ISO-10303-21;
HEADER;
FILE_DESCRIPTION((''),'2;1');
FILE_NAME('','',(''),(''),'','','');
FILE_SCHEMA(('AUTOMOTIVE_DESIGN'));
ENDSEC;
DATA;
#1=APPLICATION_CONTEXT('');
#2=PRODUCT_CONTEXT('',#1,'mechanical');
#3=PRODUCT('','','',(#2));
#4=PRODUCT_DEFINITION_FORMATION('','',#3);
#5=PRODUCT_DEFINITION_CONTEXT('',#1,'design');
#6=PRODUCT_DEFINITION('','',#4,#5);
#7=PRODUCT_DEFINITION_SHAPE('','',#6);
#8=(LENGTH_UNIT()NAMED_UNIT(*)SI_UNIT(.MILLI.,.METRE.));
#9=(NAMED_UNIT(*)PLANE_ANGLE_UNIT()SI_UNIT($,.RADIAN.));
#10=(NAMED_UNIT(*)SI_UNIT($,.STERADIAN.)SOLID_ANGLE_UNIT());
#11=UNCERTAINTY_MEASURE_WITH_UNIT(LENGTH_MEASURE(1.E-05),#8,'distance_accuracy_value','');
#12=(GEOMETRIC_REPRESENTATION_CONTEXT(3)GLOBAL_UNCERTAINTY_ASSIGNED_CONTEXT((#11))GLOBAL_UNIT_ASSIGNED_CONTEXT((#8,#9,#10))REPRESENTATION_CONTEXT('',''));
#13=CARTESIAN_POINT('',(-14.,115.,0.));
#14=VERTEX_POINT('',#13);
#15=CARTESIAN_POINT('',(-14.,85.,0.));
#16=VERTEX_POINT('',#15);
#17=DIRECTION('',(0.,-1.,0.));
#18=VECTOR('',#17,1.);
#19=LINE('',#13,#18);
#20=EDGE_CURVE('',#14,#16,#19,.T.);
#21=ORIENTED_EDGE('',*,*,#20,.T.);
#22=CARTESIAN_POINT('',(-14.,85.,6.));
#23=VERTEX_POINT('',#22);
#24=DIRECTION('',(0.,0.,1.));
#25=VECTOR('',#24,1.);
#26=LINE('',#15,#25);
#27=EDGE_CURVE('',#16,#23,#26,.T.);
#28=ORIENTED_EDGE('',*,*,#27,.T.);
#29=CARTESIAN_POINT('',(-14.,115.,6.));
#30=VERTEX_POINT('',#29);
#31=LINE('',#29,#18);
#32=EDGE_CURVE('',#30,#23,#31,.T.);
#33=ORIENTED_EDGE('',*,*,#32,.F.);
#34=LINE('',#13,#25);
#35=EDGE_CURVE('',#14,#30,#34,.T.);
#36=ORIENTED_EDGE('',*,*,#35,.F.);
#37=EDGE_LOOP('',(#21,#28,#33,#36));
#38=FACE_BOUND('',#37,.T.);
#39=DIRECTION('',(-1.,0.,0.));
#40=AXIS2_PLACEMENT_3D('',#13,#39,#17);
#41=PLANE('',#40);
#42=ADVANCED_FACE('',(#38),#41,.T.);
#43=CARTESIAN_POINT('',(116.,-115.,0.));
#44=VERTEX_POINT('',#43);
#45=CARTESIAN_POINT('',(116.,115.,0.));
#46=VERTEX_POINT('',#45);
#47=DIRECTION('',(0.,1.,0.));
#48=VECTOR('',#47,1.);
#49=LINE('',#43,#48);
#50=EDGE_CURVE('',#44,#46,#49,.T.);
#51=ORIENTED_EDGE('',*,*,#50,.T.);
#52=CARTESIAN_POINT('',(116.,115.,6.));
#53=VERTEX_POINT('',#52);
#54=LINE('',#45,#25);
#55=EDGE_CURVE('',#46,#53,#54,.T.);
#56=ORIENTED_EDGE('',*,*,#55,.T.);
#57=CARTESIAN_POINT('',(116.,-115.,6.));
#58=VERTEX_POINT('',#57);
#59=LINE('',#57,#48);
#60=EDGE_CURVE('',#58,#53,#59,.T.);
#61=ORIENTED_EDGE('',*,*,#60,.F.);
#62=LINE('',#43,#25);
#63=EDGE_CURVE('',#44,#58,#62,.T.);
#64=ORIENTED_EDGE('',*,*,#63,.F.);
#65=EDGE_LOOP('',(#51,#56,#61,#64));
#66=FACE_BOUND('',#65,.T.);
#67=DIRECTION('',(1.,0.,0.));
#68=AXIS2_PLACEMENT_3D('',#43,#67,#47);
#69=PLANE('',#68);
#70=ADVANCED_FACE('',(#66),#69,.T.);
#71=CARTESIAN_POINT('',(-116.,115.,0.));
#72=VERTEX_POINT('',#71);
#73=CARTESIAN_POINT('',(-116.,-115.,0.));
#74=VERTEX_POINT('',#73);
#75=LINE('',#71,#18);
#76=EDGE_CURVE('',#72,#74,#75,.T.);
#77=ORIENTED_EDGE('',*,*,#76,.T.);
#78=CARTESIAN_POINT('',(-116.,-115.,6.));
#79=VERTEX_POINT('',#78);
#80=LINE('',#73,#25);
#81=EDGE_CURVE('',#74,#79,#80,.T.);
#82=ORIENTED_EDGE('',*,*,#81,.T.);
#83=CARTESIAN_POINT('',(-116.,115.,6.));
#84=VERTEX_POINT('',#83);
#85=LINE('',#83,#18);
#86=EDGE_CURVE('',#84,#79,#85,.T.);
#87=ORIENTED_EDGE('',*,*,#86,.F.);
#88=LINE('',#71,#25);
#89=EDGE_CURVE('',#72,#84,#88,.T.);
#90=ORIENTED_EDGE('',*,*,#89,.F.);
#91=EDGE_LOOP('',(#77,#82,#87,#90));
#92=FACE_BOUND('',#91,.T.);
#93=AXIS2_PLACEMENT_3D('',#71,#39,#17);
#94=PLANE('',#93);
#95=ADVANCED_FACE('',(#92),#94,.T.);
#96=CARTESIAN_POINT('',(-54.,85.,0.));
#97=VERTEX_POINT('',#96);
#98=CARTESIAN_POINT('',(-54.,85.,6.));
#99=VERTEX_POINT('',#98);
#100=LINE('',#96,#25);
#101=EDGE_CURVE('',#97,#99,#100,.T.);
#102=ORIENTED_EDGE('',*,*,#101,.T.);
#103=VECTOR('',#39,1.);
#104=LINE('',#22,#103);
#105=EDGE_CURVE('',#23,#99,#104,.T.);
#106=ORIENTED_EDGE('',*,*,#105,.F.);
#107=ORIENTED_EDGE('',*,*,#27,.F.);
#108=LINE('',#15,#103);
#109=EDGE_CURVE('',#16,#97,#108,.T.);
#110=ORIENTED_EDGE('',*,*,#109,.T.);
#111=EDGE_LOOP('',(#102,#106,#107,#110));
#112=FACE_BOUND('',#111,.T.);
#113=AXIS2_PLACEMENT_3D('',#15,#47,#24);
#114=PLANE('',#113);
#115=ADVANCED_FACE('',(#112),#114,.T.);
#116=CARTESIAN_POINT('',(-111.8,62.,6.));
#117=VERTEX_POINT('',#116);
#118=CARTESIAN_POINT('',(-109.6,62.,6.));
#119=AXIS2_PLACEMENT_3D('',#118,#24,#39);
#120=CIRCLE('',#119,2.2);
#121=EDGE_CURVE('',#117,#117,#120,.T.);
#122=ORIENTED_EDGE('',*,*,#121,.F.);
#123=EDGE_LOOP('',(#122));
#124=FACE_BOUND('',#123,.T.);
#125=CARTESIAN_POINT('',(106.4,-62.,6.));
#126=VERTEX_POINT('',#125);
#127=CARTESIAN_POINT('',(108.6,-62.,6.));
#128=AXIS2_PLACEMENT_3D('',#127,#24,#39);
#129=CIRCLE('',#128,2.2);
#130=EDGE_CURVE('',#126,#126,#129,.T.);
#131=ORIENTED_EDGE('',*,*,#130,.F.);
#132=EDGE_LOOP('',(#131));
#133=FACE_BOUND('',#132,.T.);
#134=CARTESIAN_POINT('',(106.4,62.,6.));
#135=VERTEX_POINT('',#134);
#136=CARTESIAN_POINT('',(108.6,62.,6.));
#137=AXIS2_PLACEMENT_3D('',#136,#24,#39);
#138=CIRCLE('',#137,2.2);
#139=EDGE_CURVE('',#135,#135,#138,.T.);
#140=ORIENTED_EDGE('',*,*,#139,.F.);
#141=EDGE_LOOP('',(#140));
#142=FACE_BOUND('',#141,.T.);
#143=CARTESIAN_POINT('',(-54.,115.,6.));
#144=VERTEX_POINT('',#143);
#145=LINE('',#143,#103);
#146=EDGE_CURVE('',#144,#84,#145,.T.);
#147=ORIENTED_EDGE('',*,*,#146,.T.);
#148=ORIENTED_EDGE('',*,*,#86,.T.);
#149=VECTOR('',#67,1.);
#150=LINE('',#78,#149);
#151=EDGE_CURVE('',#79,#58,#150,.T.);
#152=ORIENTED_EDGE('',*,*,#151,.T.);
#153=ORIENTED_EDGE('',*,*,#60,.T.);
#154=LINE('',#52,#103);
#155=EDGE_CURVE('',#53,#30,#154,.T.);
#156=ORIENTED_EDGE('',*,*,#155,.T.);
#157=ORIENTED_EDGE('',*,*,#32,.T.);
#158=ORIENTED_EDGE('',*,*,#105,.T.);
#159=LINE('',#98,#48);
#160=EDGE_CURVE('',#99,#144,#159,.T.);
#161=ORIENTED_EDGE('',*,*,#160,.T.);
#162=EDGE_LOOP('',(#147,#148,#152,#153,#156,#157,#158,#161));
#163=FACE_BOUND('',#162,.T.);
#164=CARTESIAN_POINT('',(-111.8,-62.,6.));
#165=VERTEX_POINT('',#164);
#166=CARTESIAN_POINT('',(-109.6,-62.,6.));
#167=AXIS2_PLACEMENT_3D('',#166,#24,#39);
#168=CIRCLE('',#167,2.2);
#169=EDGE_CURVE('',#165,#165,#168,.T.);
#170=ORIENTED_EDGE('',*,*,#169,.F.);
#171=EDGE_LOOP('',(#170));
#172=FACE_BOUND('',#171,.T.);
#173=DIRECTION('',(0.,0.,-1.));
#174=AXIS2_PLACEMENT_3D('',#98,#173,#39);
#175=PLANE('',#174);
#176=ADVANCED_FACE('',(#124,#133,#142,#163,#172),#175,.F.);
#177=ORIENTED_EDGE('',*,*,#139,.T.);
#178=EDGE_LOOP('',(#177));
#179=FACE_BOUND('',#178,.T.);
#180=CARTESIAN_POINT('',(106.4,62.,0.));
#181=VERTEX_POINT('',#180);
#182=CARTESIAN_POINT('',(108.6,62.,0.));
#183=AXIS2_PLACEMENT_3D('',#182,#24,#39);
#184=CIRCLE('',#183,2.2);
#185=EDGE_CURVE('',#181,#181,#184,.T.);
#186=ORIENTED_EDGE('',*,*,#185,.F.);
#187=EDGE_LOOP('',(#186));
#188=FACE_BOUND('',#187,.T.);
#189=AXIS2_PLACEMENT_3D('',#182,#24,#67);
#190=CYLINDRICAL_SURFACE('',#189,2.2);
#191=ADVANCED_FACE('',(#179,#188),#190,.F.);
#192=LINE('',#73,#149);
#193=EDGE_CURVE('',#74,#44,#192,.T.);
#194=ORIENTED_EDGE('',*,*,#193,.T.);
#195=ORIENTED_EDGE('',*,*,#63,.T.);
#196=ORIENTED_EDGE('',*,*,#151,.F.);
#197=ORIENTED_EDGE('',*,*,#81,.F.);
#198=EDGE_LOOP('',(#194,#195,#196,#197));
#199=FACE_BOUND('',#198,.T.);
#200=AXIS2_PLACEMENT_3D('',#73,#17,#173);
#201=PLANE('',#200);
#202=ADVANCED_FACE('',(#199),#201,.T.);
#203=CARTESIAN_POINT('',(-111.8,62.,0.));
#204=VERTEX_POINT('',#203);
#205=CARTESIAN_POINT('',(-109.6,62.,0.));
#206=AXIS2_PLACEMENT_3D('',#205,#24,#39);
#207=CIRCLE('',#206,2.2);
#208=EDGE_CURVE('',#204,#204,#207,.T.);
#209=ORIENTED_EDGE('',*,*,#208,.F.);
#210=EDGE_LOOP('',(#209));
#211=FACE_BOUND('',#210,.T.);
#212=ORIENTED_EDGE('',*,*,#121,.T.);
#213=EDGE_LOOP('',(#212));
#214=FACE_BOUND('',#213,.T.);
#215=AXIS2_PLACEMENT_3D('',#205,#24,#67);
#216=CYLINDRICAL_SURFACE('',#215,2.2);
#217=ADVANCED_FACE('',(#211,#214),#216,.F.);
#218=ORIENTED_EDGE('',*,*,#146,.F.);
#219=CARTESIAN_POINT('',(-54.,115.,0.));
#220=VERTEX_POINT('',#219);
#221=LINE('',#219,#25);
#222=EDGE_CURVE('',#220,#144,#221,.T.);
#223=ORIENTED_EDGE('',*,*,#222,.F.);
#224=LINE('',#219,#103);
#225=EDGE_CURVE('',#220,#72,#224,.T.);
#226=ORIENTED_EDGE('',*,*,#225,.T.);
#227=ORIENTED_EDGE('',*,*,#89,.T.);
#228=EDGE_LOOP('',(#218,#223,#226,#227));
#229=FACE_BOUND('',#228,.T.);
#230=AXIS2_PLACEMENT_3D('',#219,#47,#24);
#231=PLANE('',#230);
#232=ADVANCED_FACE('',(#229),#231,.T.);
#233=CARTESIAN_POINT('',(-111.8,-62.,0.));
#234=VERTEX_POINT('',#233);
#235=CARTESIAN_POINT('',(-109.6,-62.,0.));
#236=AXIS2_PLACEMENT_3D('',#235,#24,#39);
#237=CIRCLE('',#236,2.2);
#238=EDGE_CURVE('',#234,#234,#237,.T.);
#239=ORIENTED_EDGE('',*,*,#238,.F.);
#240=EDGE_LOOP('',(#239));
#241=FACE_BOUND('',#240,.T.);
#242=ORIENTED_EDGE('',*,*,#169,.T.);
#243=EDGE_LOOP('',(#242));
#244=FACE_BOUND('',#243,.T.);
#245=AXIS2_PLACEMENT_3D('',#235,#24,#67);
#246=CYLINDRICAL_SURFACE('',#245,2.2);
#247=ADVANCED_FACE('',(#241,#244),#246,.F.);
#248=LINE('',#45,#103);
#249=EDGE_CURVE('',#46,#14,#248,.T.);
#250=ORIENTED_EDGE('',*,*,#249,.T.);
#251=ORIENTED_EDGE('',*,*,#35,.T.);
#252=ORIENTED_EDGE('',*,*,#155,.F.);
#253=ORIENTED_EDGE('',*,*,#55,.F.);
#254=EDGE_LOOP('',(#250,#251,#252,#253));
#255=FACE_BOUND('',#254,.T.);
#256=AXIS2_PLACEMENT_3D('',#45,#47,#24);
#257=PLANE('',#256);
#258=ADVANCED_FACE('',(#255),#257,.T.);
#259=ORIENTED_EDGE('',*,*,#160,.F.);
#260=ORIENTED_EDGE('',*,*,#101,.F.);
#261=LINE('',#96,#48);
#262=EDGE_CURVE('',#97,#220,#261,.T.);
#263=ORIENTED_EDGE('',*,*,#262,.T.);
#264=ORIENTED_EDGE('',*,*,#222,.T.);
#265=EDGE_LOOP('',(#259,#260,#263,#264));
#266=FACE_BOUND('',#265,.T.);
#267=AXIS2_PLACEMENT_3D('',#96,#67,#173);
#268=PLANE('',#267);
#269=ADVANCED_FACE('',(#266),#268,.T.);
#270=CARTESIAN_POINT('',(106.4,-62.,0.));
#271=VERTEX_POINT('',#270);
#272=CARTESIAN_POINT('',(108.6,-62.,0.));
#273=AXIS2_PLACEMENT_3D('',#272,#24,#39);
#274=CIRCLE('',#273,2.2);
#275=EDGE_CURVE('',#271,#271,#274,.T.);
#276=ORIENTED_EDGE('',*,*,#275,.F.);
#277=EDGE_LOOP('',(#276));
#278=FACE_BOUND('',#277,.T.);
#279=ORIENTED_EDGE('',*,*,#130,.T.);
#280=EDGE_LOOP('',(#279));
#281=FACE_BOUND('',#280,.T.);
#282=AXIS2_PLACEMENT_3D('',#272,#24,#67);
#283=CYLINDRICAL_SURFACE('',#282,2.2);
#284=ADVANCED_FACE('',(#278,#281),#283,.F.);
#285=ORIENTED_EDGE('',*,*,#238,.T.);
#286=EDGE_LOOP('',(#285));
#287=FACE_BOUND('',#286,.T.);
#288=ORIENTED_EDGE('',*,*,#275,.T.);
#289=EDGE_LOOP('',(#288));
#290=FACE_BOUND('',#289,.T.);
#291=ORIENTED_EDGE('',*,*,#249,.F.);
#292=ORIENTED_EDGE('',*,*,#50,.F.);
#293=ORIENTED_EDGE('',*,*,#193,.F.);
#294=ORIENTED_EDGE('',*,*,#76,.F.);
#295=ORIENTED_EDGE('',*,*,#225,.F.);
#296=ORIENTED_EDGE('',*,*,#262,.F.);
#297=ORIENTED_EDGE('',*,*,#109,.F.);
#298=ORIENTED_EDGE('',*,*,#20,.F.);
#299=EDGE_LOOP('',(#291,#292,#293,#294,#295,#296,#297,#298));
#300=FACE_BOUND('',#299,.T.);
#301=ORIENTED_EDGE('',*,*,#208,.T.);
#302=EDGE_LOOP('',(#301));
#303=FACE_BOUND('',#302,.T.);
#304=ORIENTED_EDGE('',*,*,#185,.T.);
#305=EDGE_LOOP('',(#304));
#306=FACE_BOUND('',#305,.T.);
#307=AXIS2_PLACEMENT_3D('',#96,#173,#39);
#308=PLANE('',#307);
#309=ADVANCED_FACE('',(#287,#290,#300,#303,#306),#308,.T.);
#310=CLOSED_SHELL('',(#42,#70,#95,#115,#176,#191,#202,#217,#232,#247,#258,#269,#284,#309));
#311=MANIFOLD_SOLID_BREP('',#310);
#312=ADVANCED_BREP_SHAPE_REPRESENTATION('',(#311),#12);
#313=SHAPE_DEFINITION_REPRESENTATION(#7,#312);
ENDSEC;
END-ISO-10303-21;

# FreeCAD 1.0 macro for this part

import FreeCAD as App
import Part
import Sketcher
Q = App.Units.Quantity

doc = App.newDocument("Part")
body = doc.addObject("PartDesign::Body", "Body")

# Sketch on XY plane
sketch1 = body.newObject("Sketcher::SketchObject", "Sketch")
sketch1.AttachmentSupport = (doc.getObject("XY_Plane"), [""])
sketch1.MapMode = "FlatFace"
sketch1.AttachmentOffset = App.Placement(App.Vector(0, 0, 6), App.Rotation())
sketch1.addGeometry([
    Part.LineSegment(App.Vector(-54, 85, 0), App.Vector(-54, 115, 0)),  # 0
    Part.LineSegment(App.Vector(-54, 115, 0), App.Vector(-116, 115, 0)),  # 1
    Part.LineSegment(App.Vector(-116, 115, 0), App.Vector(-116, -115, 0)),  # 2
    Part.LineSegment(App.Vector(-116, -115, 0), App.Vector(116, -115, 0)),  # 3
    Part.LineSegment(App.Vector(116, -115, 0), App.Vector(116, 115, 0)),  # 4
    Part.LineSegment(App.Vector(116, 115, 0), App.Vector(-14, 115, 0)),  # 5
    Part.LineSegment(App.Vector(-14, 115, 0), App.Vector(-14, 85, 0)),  # 6
    Part.LineSegment(App.Vector(-14, 85, 0), App.Vector(-54, 85, 0)),  # 7
    Part.Circle(App.Vector(-109.6, -62, 0), App.Vector(0, 0, 1), 2.2),  # 8
    Part.Circle(App.Vector(108.6, -62, 0), App.Vector(0, 0, 1), 2.2),  # 9
    Part.Circle(App.Vector(-109.6, 62, 0), App.Vector(0, 0, 1), 2.2),  # 10
    Part.Circle(App.Vector(108.6, 62, 0), App.Vector(0, 0, 1), 2.2),  # 11
], False)
sketch1.addConstraint([
    Sketcher.Constraint("Coincident", 0, 2, 1, 1),
    Sketcher.Constraint("Coincident", 1, 2, 2, 1),
    Sketcher.Constraint("Coincident", 2, 2, 3, 1),
    Sketcher.Constraint("Coincident", 3, 2, 4, 1),
    Sketcher.Constraint("Coincident", 4, 2, 5, 1),
    Sketcher.Constraint("Coincident", 5, 2, 6, 1),
    Sketcher.Constraint("Coincident", 6, 2, 7, 1),
    Sketcher.Constraint("Coincident", 7, 2, 0, 1),
    Sketcher.Constraint("Vertical", 0),
    Sketcher.Constraint("Horizontal", 1),
    Sketcher.Constraint("Vertical", 2),
    Sketcher.Constraint("Horizontal", 3),
    Sketcher.Constraint("Vertical", 4),
    Sketcher.Constraint("Horizontal", 5),
    Sketcher.Constraint("Vertical", 6),
    Sketcher.Constraint("Horizontal", 7),
    Sketcher.Constraint("Equal", 8, 9),
    Sketcher.Constraint("Equal", 9, 10),
    Sketcher.Constraint("Equal", 10, 11),
    Sketcher.Constraint("Symmetric", 1, 2, 3, 2, -1, 1),
    Sketcher.Constraint("Symmetric", 8, 3, 10, 3, -1),
    Sketcher.Constraint("Symmetric", 9, 3, 11, 3, -1),
    Sketcher.Constraint("Horizontal", 8, 3, 9, 3),
    Sketcher.Constraint("Horizontal", 1, 2, 4, 2),
    Sketcher.Constraint("Diameter", 8, Q("4.4 mm")),
    Sketcher.Constraint("DistanceX", 1, 2, 1, 1, Q("62 mm")),
    Sketcher.Constraint("DistanceX", 3, 1, 3, 2, Q("232 mm")),
    Sketcher.Constraint("DistanceX", 5, 2, 5, 1, Q("130 mm")),
    Sketcher.Constraint("DistanceY", 0, 1, 0, 2, Q("30 mm")),
    Sketcher.Constraint("DistanceY", 2, 2, 2, 1, Q("230 mm")),
    Sketcher.Constraint("DistanceY", 8, 3, -1, 1, Q("62 mm")),
    Sketcher.Constraint("DistanceX", 8, 3, -1, 1, Q("109.6 mm")),
    Sketcher.Constraint("DistanceX", -1, 1, 9, 3, Q("108.6 mm")),
])
pad1 = body.newObject("PartDesign::Pad", "Pad")
pad1.Profile = sketch1
pad1.Length = 6
pad1.Reversed = True

doc.recompute()
